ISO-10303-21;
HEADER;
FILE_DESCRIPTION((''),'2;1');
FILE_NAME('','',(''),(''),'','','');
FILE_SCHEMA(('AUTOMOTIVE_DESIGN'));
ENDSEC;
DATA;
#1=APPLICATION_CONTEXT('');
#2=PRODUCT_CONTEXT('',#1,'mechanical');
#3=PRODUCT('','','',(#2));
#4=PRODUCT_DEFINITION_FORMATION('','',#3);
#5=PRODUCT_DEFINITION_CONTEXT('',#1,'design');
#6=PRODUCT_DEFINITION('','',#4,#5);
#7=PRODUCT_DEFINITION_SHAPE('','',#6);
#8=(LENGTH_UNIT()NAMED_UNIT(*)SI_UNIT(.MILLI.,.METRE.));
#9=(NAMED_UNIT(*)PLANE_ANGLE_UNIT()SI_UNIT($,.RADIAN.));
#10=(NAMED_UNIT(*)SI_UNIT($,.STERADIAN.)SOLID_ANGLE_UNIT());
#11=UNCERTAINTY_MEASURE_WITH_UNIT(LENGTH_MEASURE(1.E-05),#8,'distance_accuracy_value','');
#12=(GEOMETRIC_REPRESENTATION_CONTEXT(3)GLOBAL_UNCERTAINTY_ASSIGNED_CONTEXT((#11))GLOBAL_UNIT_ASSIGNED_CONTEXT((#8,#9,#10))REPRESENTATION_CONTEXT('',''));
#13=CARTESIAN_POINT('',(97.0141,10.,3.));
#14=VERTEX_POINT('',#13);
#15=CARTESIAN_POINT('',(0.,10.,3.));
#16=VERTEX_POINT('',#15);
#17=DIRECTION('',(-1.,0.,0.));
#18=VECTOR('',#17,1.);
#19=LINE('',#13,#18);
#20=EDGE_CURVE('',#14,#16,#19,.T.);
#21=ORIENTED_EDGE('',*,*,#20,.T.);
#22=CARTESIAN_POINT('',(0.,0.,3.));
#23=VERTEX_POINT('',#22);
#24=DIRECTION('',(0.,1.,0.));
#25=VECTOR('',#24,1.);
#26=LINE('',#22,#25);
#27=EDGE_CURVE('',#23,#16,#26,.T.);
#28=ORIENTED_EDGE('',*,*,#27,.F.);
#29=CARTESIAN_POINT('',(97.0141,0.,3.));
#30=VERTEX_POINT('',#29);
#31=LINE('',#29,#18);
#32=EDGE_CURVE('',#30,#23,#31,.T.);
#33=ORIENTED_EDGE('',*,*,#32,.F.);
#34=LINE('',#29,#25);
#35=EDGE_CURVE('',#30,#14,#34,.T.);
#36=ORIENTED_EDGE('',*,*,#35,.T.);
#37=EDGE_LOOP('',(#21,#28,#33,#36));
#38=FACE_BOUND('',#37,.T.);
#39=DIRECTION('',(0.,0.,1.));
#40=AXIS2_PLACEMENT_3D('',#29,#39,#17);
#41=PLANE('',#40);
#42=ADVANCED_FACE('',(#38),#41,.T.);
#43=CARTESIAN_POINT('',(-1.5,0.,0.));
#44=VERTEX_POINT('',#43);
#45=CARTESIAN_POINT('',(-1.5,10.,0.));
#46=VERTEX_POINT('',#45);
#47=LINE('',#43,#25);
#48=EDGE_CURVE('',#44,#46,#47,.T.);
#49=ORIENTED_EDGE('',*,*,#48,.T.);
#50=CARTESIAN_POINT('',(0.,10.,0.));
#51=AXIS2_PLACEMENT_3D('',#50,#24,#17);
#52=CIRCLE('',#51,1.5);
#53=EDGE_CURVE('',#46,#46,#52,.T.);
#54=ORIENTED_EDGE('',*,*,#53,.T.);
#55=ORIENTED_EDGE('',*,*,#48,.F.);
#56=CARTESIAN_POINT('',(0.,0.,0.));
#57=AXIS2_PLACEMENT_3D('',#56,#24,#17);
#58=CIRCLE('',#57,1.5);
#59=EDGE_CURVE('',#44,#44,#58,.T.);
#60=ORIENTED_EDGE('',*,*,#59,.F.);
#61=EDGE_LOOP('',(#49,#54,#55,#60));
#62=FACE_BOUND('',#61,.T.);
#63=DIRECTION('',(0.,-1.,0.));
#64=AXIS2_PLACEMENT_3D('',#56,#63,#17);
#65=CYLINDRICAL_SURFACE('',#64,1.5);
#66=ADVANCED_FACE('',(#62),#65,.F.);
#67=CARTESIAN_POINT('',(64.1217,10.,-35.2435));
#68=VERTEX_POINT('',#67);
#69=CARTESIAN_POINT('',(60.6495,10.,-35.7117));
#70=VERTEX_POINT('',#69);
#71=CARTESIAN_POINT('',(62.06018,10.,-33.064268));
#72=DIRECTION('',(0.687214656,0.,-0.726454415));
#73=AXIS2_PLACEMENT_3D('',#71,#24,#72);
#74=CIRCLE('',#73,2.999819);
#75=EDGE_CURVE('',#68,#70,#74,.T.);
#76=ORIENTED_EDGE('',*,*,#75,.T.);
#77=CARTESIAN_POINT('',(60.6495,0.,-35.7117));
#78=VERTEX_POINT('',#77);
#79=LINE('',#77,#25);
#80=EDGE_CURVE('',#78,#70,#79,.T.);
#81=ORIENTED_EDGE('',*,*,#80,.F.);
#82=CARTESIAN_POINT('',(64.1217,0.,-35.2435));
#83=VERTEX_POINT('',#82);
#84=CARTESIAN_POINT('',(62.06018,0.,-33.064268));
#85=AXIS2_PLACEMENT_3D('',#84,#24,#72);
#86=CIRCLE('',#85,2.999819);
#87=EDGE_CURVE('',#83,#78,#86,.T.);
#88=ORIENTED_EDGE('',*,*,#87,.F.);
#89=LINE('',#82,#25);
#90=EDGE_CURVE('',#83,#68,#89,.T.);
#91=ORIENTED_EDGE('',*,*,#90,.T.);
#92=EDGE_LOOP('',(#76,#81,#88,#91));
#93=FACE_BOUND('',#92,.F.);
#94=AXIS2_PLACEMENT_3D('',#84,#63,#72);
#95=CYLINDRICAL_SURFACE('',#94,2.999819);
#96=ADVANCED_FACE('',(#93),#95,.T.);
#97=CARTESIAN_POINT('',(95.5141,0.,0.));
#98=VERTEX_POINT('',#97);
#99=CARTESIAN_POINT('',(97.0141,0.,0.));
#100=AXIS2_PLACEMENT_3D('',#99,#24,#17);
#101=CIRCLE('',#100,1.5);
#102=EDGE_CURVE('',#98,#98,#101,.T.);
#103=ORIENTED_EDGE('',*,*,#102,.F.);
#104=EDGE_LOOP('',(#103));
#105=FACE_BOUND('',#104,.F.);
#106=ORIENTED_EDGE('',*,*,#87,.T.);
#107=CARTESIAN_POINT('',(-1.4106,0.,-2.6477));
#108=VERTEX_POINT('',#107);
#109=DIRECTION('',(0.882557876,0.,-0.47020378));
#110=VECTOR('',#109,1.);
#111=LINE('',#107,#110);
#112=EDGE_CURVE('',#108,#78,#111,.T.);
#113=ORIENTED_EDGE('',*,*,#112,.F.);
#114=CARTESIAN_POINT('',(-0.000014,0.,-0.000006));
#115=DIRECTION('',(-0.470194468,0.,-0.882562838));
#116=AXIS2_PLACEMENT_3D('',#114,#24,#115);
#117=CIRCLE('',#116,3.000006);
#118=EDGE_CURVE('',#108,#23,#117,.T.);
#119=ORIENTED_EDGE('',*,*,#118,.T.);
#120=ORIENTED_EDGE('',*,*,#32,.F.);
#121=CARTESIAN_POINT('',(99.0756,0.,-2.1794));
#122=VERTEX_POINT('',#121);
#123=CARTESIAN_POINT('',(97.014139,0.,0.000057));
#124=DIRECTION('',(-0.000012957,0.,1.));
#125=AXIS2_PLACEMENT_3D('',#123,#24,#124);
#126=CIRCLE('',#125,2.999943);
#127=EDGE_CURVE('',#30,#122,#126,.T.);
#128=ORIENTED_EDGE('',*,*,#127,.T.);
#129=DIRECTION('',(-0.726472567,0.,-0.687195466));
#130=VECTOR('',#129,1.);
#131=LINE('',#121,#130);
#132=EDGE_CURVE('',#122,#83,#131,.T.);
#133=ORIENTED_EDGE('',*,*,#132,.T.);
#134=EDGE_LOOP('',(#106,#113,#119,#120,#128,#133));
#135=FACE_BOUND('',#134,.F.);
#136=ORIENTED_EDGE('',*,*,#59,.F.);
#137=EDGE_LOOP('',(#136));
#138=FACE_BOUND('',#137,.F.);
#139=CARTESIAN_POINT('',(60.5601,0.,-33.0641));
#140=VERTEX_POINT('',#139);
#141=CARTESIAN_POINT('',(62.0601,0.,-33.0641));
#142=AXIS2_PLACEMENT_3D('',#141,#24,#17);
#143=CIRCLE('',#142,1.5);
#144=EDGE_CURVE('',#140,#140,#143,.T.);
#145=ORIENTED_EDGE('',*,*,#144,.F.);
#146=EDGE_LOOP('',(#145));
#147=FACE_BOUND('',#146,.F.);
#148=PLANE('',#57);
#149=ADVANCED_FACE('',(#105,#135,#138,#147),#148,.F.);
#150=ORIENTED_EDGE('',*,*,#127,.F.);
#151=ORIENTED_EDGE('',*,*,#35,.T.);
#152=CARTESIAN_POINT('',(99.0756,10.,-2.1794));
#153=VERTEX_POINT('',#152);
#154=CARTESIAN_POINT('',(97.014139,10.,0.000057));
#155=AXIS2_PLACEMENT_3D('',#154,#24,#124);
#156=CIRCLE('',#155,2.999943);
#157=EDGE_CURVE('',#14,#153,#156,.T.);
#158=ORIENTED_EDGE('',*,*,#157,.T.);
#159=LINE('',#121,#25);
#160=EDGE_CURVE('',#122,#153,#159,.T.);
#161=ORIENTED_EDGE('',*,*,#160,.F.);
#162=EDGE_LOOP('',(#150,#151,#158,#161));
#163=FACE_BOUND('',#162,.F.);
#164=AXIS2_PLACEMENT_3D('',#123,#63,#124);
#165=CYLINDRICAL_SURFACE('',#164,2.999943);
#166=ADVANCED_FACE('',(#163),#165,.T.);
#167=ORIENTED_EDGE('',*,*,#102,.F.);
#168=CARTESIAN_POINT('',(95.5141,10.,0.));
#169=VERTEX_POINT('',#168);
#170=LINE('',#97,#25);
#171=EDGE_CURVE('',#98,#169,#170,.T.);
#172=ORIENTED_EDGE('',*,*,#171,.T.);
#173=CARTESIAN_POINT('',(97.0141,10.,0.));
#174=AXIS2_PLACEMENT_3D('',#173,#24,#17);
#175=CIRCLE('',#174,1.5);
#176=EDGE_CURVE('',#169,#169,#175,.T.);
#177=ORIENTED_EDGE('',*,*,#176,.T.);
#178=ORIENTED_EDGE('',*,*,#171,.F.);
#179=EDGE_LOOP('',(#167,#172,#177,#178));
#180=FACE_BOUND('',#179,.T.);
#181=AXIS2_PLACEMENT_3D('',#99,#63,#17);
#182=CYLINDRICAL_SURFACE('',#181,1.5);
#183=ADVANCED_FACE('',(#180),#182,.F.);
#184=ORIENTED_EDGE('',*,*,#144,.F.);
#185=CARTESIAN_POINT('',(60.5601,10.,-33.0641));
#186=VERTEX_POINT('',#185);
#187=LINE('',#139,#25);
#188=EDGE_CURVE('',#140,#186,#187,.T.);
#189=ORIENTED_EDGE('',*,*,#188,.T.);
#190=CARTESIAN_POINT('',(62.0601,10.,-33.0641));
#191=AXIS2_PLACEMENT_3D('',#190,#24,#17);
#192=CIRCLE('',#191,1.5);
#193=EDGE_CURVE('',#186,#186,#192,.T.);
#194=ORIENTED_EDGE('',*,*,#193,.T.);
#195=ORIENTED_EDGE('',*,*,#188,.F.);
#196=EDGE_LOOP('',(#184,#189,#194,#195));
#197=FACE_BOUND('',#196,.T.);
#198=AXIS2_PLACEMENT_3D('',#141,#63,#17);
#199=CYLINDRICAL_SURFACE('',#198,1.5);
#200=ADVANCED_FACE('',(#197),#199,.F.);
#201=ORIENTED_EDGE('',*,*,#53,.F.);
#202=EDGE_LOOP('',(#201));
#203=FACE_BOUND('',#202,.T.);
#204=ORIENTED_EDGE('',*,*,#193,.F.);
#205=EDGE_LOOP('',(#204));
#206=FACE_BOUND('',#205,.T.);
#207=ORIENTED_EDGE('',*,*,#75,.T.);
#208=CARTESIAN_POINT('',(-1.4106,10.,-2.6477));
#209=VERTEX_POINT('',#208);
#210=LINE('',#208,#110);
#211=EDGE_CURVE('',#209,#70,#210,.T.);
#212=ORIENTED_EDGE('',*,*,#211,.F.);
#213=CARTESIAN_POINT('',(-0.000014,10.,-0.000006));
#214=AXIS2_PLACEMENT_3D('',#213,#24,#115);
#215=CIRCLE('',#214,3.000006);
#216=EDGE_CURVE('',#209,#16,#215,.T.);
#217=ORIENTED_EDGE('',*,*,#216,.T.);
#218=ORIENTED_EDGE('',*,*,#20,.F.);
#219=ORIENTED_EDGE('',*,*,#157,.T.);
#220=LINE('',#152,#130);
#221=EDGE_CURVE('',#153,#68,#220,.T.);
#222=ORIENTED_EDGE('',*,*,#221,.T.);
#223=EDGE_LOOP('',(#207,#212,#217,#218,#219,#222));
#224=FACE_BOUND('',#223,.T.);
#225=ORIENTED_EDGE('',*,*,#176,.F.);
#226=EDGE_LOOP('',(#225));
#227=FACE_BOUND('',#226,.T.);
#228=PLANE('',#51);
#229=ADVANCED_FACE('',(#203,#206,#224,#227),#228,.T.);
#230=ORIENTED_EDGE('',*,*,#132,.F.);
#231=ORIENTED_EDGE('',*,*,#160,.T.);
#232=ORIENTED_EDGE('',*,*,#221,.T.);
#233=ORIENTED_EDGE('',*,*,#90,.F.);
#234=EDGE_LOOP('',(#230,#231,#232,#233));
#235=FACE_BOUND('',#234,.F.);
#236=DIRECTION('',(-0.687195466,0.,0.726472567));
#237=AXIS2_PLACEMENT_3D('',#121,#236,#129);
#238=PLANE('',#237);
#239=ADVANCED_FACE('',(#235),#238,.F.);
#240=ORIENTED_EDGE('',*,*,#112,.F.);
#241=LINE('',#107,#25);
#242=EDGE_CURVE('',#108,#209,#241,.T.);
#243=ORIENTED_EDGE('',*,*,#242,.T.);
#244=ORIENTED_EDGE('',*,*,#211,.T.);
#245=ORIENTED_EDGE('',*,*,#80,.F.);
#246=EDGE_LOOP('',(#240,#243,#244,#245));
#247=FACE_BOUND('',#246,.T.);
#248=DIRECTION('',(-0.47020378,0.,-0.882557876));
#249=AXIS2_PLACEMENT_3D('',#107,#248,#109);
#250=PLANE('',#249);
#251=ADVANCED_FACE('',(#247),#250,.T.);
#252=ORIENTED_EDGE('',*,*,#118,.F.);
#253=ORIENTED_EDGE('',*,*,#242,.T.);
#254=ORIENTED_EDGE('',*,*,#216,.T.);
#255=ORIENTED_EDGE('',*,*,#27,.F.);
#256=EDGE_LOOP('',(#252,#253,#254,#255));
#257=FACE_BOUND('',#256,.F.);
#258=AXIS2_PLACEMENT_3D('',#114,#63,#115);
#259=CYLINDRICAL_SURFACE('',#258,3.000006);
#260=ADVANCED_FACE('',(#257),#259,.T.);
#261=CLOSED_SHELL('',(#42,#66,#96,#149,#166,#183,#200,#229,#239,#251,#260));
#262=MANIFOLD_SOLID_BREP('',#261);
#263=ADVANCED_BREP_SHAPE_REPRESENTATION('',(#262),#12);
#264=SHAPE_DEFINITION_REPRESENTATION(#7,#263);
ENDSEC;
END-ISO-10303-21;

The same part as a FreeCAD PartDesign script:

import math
import FreeCAD as App
import Part
import Sketcher
from FreeCAD import Vector
Q = App.Units.Quantity

doc = App.newDocument("Part")
body = doc.addObject("PartDesign::Body", "Body")

sketch1 = doc.addObject("Sketcher::SketchObject", "Sketch")
body.addObject(sketch1)
sketch1.AttachmentSupport = (doc.XZ_Plane, [""])
sketch1.MapMode = "FlatFace"
sketch1.addGeometry([
    Part.LineSegment(Vector(0, 3, 0), Vector(97.0141, 3, 0)),
    Part.ArcOfCircle(Part.Circle(Vector(97.0141, 0, 0), Vector(0, 0, 1), 3), math.radians(-46.592453), math.radians(90)),
    Part.LineSegment(Vector(99.0756, -2.1794, 0), Vector(64.1217, -35.2435, 0)),
    Part.ArcOfCircle(Part.Circle(Vector(62.0601, -33.0641, 0), Vector(0, 0, 1), 2.999996), math.radians(-118.047995), math.radians(-46.591065)),
    Part.LineSegment(Vector(60.6495, -35.7117, 0), Vector(-1.4106, -2.6477, 0)),
    Part.ArcOfCircle(Part.Circle(Vector(0, 0, 0), Vector(0, 0, 1), 3.000018), math.radians(90), math.radians(241.952903)),
    Part.Circle(Vector(62.0601, -33.0641, 0), Vector(0, 0, 1), 1.5),
    Part.Circle(Vector(97.0141, 0, 0), Vector(0, 0, 1), 1.5),
    Part.Circle(Vector(0, 0, 0), Vector(0, 0, 1), 1.5),
], False)
sketch1.addConstraint([
    Sketcher.Constraint("Tangent", 0, 2, 1, 2),
    Sketcher.Constraint("Tangent", 1, 1, 2, 1),
    Sketcher.Constraint("Tangent", 2, 2, 3, 2),
    Sketcher.Constraint("Tangent", 3, 1, 4, 1),
    Sketcher.Constraint("Tangent", 4, 2, 5, 2),
    Sketcher.Constraint("Tangent", 5, 1, 0, 1),
    Sketcher.Constraint("Horizontal", 0),
    Sketcher.Constraint("Coincident", 5, 3, -1, 1),
    Sketcher.Constraint("Coincident", 8, 3, -1, 1),
    Sketcher.Constraint("Coincident", 6, 3, 3, 3),
    Sketcher.Constraint("Coincident", 7, 3, 1, 3),
    Sketcher.Constraint("Equal", 1, 3),
    Sketcher.Constraint("Equal", 3, 5),
    Sketcher.Constraint("Equal", 6, 7),
    Sketcher.Constraint("Equal", 7, 8),
    Sketcher.Constraint("Diameter", 6, Q("3 mm")),
    Sketcher.Constraint("Radius", 1, Q("3 mm")),
    Sketcher.Constraint("DistanceX", 0, 1, 0, 2, Q("97.014 mm")),
    Sketcher.Constraint("Distance", 2, Q("48.1145 mm")),
    Sketcher.Constraint("Distance", 4, Q("70.3184 mm")),
])
pad1 = doc.addObject("PartDesign::Pad", "Pad")
body.addObject(pad1)
pad1.Profile = sketch1
pad1.Length = 10
pad1.Reversed = True

doc.recompute()
